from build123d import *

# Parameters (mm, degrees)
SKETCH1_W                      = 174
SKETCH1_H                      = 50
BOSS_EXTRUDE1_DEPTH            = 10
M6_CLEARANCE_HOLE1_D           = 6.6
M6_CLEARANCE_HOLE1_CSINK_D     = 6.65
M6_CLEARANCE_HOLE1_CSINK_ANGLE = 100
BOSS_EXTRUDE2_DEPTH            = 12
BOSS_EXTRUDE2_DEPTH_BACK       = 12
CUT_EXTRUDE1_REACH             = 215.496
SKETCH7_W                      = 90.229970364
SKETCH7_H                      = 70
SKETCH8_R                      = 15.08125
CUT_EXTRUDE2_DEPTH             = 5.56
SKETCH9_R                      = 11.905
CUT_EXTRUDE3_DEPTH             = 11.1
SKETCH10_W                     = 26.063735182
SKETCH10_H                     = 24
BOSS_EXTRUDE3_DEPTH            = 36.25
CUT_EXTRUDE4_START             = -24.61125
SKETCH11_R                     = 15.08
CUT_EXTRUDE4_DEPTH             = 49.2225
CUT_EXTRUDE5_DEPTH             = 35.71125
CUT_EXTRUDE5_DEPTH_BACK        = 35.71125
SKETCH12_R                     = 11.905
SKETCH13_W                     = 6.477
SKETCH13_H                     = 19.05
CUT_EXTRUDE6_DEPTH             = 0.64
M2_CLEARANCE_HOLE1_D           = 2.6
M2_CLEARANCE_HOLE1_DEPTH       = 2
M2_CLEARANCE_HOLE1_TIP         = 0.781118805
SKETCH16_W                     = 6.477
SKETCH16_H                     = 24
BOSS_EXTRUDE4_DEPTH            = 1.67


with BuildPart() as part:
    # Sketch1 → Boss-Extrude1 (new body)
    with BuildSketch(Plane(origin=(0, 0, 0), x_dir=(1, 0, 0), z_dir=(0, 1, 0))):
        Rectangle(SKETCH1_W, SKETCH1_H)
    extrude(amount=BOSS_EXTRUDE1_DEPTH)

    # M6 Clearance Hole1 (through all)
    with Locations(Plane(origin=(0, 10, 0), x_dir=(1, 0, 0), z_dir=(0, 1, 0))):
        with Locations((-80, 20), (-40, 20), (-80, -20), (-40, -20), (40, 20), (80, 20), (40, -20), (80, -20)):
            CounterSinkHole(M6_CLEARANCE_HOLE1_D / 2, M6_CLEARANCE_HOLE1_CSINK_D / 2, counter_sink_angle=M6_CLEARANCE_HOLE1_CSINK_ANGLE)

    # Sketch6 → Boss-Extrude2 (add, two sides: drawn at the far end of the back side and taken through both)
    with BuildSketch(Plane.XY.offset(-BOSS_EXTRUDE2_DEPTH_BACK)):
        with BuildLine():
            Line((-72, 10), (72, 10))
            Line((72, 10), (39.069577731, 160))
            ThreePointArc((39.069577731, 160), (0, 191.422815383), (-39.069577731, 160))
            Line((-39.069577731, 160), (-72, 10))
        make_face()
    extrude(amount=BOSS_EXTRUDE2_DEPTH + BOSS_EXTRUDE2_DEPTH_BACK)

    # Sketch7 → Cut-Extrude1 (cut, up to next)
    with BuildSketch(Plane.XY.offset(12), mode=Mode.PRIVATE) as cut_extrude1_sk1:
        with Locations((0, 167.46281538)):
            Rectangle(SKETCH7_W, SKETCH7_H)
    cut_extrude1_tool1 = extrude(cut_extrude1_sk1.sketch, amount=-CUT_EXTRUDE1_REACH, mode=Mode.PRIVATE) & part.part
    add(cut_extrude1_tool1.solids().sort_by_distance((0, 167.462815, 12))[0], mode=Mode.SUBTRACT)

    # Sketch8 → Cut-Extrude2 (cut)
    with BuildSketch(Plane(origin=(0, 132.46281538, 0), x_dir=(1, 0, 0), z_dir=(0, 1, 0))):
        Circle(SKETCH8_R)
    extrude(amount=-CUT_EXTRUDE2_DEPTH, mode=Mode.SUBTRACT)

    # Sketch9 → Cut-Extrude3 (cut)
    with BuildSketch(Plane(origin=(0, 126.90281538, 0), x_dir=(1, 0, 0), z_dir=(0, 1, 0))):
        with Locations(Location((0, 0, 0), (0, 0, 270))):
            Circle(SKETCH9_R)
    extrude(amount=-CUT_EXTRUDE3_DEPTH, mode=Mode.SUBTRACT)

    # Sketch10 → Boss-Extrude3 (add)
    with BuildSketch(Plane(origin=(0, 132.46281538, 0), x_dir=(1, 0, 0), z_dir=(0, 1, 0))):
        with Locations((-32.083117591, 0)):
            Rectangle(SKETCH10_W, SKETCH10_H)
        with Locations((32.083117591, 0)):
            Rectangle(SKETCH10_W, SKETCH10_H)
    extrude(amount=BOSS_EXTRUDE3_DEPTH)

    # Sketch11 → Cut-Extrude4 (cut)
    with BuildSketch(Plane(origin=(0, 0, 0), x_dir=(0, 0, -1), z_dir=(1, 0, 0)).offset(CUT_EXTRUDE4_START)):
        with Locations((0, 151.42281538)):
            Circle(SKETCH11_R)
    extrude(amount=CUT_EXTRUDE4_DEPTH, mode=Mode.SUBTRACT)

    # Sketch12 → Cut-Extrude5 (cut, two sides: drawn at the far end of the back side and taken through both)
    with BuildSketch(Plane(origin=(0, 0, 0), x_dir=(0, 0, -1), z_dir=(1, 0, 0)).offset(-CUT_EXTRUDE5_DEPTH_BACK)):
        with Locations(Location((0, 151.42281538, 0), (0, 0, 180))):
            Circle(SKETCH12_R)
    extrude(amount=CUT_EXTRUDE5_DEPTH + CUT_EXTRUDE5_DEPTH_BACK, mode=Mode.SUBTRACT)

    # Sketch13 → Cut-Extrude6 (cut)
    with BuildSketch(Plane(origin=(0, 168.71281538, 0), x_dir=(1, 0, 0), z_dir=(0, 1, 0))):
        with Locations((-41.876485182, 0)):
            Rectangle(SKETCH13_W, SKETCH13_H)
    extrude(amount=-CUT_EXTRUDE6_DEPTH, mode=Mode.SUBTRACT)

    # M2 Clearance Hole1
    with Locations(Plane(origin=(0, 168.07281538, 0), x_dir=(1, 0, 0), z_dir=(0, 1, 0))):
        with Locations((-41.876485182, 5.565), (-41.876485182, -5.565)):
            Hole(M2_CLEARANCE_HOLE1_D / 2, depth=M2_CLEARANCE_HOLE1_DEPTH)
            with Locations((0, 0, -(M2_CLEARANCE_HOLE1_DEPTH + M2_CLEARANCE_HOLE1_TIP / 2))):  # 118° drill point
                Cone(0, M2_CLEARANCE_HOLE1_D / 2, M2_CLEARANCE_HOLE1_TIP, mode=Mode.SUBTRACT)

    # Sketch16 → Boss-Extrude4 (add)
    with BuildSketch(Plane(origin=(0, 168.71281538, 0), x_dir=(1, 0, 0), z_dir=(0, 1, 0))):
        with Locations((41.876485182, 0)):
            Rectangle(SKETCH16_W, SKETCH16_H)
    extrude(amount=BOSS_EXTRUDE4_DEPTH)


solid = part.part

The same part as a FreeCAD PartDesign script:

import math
import FreeCAD as App
import Part
import Sketcher
Q = App.Units.Quantity

doc = App.newDocument("Part")
body = doc.addObject("PartDesign::Body", "Body")

sketch1 = body.newObject("Sketcher::SketchObject", "Sketch")
sketch1.AttachmentSupport = (doc.getObject("XZ_Plane"), [""])
sketch1.MapMode = "FlatFace"
sketch1.addGeometry([
    Part.LineSegment(App.Vector(-87, -25, 0), App.Vector(-87, 25, 0)),
    Part.LineSegment(App.Vector(-87, 25, 0), App.Vector(87, 25, 0)),
    Part.LineSegment(App.Vector(87, 25, 0), App.Vector(87, -25, 0)),
    Part.LineSegment(App.Vector(87, -25, 0), App.Vector(-87, -25, 0)),
], False)
sketch1.addConstraint([
    Sketcher.Constraint("Coincident", 0, 2, 1, 1),
    Sketcher.Constraint("Coincident", 1, 2, 2, 1),
    Sketcher.Constraint("Coincident", 2, 2, 3, 1),
    Sketcher.Constraint("Coincident", 3, 2, 0, 1),
    Sketcher.Constraint("Vertical", 0),
    Sketcher.Constraint("Horizontal", 1),
    Sketcher.Constraint("Vertical", 2),
    Sketcher.Constraint("Horizontal", 3),
    Sketcher.Constraint("Symmetric", 0, 2, 2, 2, -1, 1),
    Sketcher.Constraint("DistanceX", 1, 1, 1, 2, Q("174 mm")),
    Sketcher.Constraint("DistanceY", 0, 1, 0, 2, Q("50 mm")),
])
pad1 = body.newObject("PartDesign::Pad", "Pad")
pad1.Profile = sketch1
pad1.Length = 10
pad1.Reversed = True

sketch2 = body.newObject("Sketcher::SketchObject", "Sketch001")
sketch2.AttachmentSupport = (doc.getObject("XZ_Plane"), [""])
sketch2.MapMode = "FlatFace"
sketch2.AttachmentOffset = App.Placement(App.Vector(0, 0, -10), App.Rotation())
sketch2.addGeometry([
    Part.Circle(App.Vector(-80, -20, 0), App.Vector(0, 0, 1), 3.3),
    Part.Circle(App.Vector(-40, -20, 0), App.Vector(0, 0, 1), 3.3),
    Part.Circle(App.Vector(-80, 20, 0), App.Vector(0, 0, 1), 3.3),
    Part.Circle(App.Vector(-40, 20, 0), App.Vector(0, 0, 1), 3.3),
    Part.Circle(App.Vector(40, -20, 0), App.Vector(0, 0, 1), 3.3),
    Part.Circle(App.Vector(80, -20, 0), App.Vector(0, 0, 1), 3.3),
    Part.Circle(App.Vector(40, 20, 0), App.Vector(0, 0, 1), 3.3),
    Part.Circle(App.Vector(80, 20, 0), App.Vector(0, 0, 1), 3.3),
], False)
sketch2.addConstraint([
    Sketcher.Constraint("Equal", 0, 1),
    Sketcher.Constraint("Equal", 1, 2),
    Sketcher.Constraint("Equal", 2, 3),
    Sketcher.Constraint("Equal", 3, 4),
    Sketcher.Constraint("Equal", 4, 5),
    Sketcher.Constraint("Equal", 5, 6),
    Sketcher.Constraint("Equal", 6, 7),
    Sketcher.Constraint("Symmetric", 3, 3, 4, 3, -1, 1),
    Sketcher.Constraint("Symmetric", 2, 3, 5, 3, -1, 1),
    Sketcher.Constraint("Symmetric", 1, 3, 6, 3, -1, 1),
    Sketcher.Constraint("Symmetric", 0, 3, 7, 3, -1, 1),
    Sketcher.Constraint("Symmetric", 1, 3, 4, 3, -2),
    Sketcher.Constraint("Symmetric", 0, 3, 5, 3, -2),
    Sketcher.Constraint("Horizontal", 0, 3, 1, 3),
    Sketcher.Constraint("Diameter", 0, Q("6.6 mm")),
    Sketcher.Constraint("DistanceX", 0, 3, -1, 1, Q("80 mm")),
    Sketcher.Constraint("DistanceY", 0, 3, -1, 1, Q("20 mm")),
    Sketcher.Constraint("DistanceX", 1, 3, -1, 1, Q("40 mm")),
])
doc.recompute()
hole = body.newObject("PartDesign::Hole", "Hole")
hole.Profile = sketch2
hole.ThreadType = "None"
hole.Diameter = 6.6
hole.DepthType = "ThroughAll"
hole.HoleCutType = "Countersink"
hole.HoleCutDiameter = 6.65
hole.HoleCutCountersinkAngle = 100
hole.Reversed = True

sketch3 = body.newObject("Sketcher::SketchObject", "Sketch002")
sketch3.AttachmentSupport = (doc.getObject("XY_Plane"), [""])
sketch3.MapMode = "FlatFace"
sketch3.addGeometry([
    Part.LineSegment(App.Vector(-72, 10, 0), App.Vector(72, 10, 0)),
    Part.LineSegment(App.Vector(72, 10, 0), App.Vector(39, 160, 0)),
    Part.ArcOfCircle(Part.Circle(App.Vector(0, 151, 0), App.Vector(0, 0, 1), 40), math.radians(12), math.radians(168)),
    Part.LineSegment(App.Vector(-39, 160, 0), App.Vector(-72, 10, 0)),
], False)
sketch3.addConstraint([
    Sketcher.Constraint("Coincident", 0, 2, 1, 1),
    Sketcher.Constraint("Tangent", 1, 2, 2, 1),
    Sketcher.Constraint("Tangent", 2, 2, 3, 1),
    Sketcher.Constraint("Coincident", 3, 2, 0, 1),
    Sketcher.Constraint("Horizontal", 0),
    Sketcher.Constraint("Symmetric", 1, 2, 2, 2, -2),
    Sketcher.Constraint("Radius", 2, Q("40 mm")),
    Sketcher.Constraint("DistanceX", 0, 1, 0, 2, Q("144 mm")),
    Sketcher.Constraint("DistanceY", -1, 1, 0, 2, Q("10 mm")),
    Sketcher.Constraint("DistanceY", -1, 1, 1, 2, Q("160 mm")),
])
pad2 = body.newObject("PartDesign::Pad", "Pad001")
pad2.Profile = sketch3
pad2.Type = "TwoLengths"
pad2.Length = 12
pad2.Length2 = 12

sketch4 = body.newObject("Sketcher::SketchObject", "Sketch003")
sketch4.AttachmentSupport = (doc.getObject("XY_Plane"), [""])
sketch4.MapMode = "FlatFace"
sketch4.AttachmentOffset = App.Placement(App.Vector(0, 0, 12), App.Rotation())
sketch4.addGeometry([
    Part.LineSegment(App.Vector(-45, 202, 0), App.Vector(-45, 132, 0)),
    Part.LineSegment(App.Vector(-45, 132, 0), App.Vector(45, 132, 0)),
    Part.LineSegment(App.Vector(45, 132, 0), App.Vector(45, 202, 0)),
    Part.LineSegment(App.Vector(45, 202, 0), App.Vector(-45, 202, 0)),
], False)
sketch4.addConstraint([
    Sketcher.Constraint("Coincident", 0, 2, 1, 1),
    Sketcher.Constraint("Coincident", 1, 2, 2, 1),
    Sketcher.Constraint("Coincident", 2, 2, 3, 1),
    Sketcher.Constraint("Coincident", 3, 2, 0, 1),
    Sketcher.Constraint("Vertical", 0),
    Sketcher.Constraint("Horizontal", 1),
    Sketcher.Constraint("Vertical", 2),
    Sketcher.Constraint("Horizontal", 3),
    Sketcher.Constraint("DistanceY", 0, 2, 0, 1, Q("70 mm")),
    Sketcher.Constraint("DistanceX", 1, 1, 1, 2, Q("90.22997 mm")),
    Sketcher.Constraint("DistanceX", 0, 2, -1, 1, Q("45.114985 mm")),
    Sketcher.Constraint("DistanceY", -1, 1, 0, 2, Q("132.462815 mm")),
])
pocket1 = body.newObject("PartDesign::Pocket", "Pocket")
pocket1.Profile = sketch4
pocket1.Type = "UpToFirst"

sketch5 = body.newObject("Sketcher::SketchObject", "Sketch004")
sketch5.AttachmentSupport = (doc.getObject("XZ_Plane"), [""])
sketch5.MapMode = "FlatFace"
sketch5.AttachmentOffset = App.Placement(App.Vector(0, 0, -132.462815), App.Rotation())
sketch5.addGeometry(Part.Circle(App.Vector(0, 0, 0), App.Vector(0, 0, 1), 15), False)
sketch5.addConstraint([
    Sketcher.Constraint("Coincident", 0, 3, -1, 1),
    Sketcher.Constraint("Diameter", 0, Q("30.1625 mm")),
])
pocket2 = body.newObject("PartDesign::Pocket", "Pocket001")
pocket2.Profile = sketch5
pocket2.Length = 5.56
pocket2.Reversed = True

sketch6 = body.newObject("Sketcher::SketchObject", "Sketch005")
sketch6.AttachmentSupport = (doc.getObject("XZ_Plane"), [""])
sketch6.MapMode = "FlatFace"
sketch6.AttachmentOffset = App.Placement(App.Vector(0, 0, -126.902815), App.Rotation())
sketch6.addGeometry(Part.Circle(App.Vector(0, 0, 0), App.Vector(0, 0, 1), 12), False)
sketch6.addConstraint([
    Sketcher.Constraint("Coincident", 0, 3, -1, 1),
    Sketcher.Constraint("Diameter", 0, Q("23.81 mm")),
])
pocket3 = body.newObject("PartDesign::Pocket", "Pocket002")
pocket3.Profile = sketch6
pocket3.Length = 11.1
pocket3.Reversed = True

sketch7 = body.newObject("Sketcher::SketchObject", "Sketch006")
sketch7.AttachmentSupport = (doc.getObject("XZ_Plane"), [""])
sketch7.MapMode = "FlatFace"
sketch7.AttachmentOffset = App.Placement(App.Vector(0, 0, -132.462815), App.Rotation())
sketch7.addGeometry([
    Part.LineSegment(App.Vector(-45, -12, 0), App.Vector(-45, 12, 0)),
    Part.LineSegment(App.Vector(-45, 12, 0), App.Vector(-19, 12, 0)),
    Part.LineSegment(App.Vector(-19, 12, 0), App.Vector(-19, -12, 0)),
    Part.LineSegment(App.Vector(-19, -12, 0), App.Vector(-45, -12, 0)),
    Part.LineSegment(App.Vector(19, -12, 0), App.Vector(19, 12, 0)),
    Part.LineSegment(App.Vector(19, 12, 0), App.Vector(45, 12, 0)),
    Part.LineSegment(App.Vector(45, 12, 0), App.Vector(45, -12, 0)),
    Part.LineSegment(App.Vector(45, -12, 0), App.Vector(19, -12, 0)),
], False)
sketch7.addConstraint([
    Sketcher.Constraint("Coincident", 0, 2, 1, 1),
    Sketcher.Constraint("Coincident", 1, 2, 2, 1),
    Sketcher.Constraint("Coincident", 2, 2, 3, 1),
    Sketcher.Constraint("Coincident", 3, 2, 0, 1),
    Sketcher.Constraint("Coincident", 4, 2, 5, 1),
    Sketcher.Constraint("Coincident", 5, 2, 6, 1),
    Sketcher.Constraint("Coincident", 6, 2, 7, 1),
    Sketcher.Constraint("Coincident", 7, 2, 4, 1),
    Sketcher.Constraint("Vertical", 0),
    Sketcher.Constraint("Horizontal", 1),
    Sketcher.Constraint("Vertical", 2),
    Sketcher.Constraint("Horizontal", 3),
    Sketcher.Constraint("Vertical", 4),
    Sketcher.Constraint("Horizontal", 5),
    Sketcher.Constraint("Vertical", 6),
    Sketcher.Constraint("Horizontal", 7),
    Sketcher.Constraint("Symmetric", 2, 2, 4, 2, -1, 1),
    Sketcher.Constraint("Symmetric", 0, 2, 6, 2, -1, 1),
    Sketcher.Constraint("Horizontal", 1, 2, 4, 2),
    Sketcher.Constraint("DistanceY", 0, 1, 0, 2, Q("24 mm")),
    Sketcher.Constraint("DistanceX", 1, 2, 4, 2, Q("38.1025 mm")),
    Sketcher.Constraint("DistanceX", 1, 1, 1, 2, Q("26.063735 mm")),
])
pad3 = body.newObject("PartDesign::Pad", "Pad002")
pad3.Profile = sketch7
pad3.Length = 36.25
pad3.Reversed = True

sketch8 = body.newObject("Sketcher::SketchObject", "Sketch007")
sketch8.AttachmentSupport = (doc.getObject("YZ_Plane"), [""])
sketch8.MapMode = "FlatFace"
sketch8.AttachmentOffset = App.Placement(App.Vector(0, 0, -24.61125), App.Rotation())
sketch8.addGeometry(Part.Circle(App.Vector(151, 0, 0), App.Vector(0, 0, 1), 15), False)
sketch8.addConstraint([
    Sketcher.Constraint("PointOnObject", 0, 3, -1),
    Sketcher.Constraint("Diameter", 0, Q("30.16 mm")),
    Sketcher.Constraint("DistanceX", -1, 1, 0, 3, Q("151.422815 mm")),
])
pocket4 = body.newObject("PartDesign::Pocket", "Pocket003")
pocket4.Profile = sketch8
pocket4.Length = 49.2225
pocket4.Reversed = True

sketch9 = body.newObject("Sketcher::SketchObject", "Sketch008")
sketch9.AttachmentSupport = (doc.getObject("YZ_Plane"), [""])
sketch9.MapMode = "FlatFace"
sketch9.addGeometry(Part.Circle(App.Vector(151, 0, 0), App.Vector(0, 0, 1), 12), False)
sketch9.addConstraint([
    Sketcher.Constraint("PointOnObject", 0, 3, -1),
    Sketcher.Constraint("Diameter", 0, Q("23.81 mm")),
    Sketcher.Constraint("DistanceX", -1, 1, 0, 3, Q("151.422815 mm")),
])
pocket5 = body.newObject("PartDesign::Pocket", "Pocket004")
pocket5.Profile = sketch9
pocket5.Type = "TwoLengths"
pocket5.Length = 35.71125
pocket5.Length2 = 35.71125
pocket5.Reversed = True

sketch10 = body.newObject("Sketcher::SketchObject", "Sketch009")
sketch10.AttachmentSupport = (doc.getObject("XZ_Plane"), [""])
sketch10.MapMode = "FlatFace"
sketch10.AttachmentOffset = App.Placement(App.Vector(0, 0, -168.712815), App.Rotation())
sketch10.addGeometry([
    Part.LineSegment(App.Vector(-45, -10, 0), App.Vector(-45, 10, 0)),
    Part.LineSegment(App.Vector(-45, 10, 0), App.Vector(-39, 10, 0)),
    Part.LineSegment(App.Vector(-39, 10, 0), App.Vector(-39, -10, 0)),
    Part.LineSegment(App.Vector(-39, -10, 0), App.Vector(-45, -10, 0)),
], False)
sketch10.addConstraint([
    Sketcher.Constraint("Coincident", 0, 2, 1, 1),
    Sketcher.Constraint("Coincident", 1, 2, 2, 1),
    Sketcher.Constraint("Coincident", 2, 2, 3, 1),
    Sketcher.Constraint("Coincident", 3, 2, 0, 1),
    Sketcher.Constraint("Vertical", 0),
    Sketcher.Constraint("Horizontal", 1),
    Sketcher.Constraint("Vertical", 2),
    Sketcher.Constraint("Horizontal", 3),
    Sketcher.Constraint("DistanceY", 0, 1, 0, 2, Q("19.05 mm")),
    Sketcher.Constraint("DistanceX", 1, 1, 1, 2, Q("6.477 mm")),
    Sketcher.Constraint("DistanceY", -1, 1, 0, 2, Q("9.525 mm")),
    Sketcher.Constraint("DistanceX", 0, 2, -1, 1, Q("45.114985 mm")),
])
pocket6 = body.newObject("PartDesign::Pocket", "Pocket005")
pocket6.Profile = sketch10
pocket6.Length = 0.64
pocket6.Reversed = True

sketch11 = body.newObject("Sketcher::SketchObject", "Sketch010")
sketch11.AttachmentSupport = (doc.getObject("XZ_Plane"), [""])
sketch11.MapMode = "FlatFace"
sketch11.AttachmentOffset = App.Placement(App.Vector(0, 0, -168.072815), App.Rotation())
sketch11.addGeometry([
    Part.Circle(App.Vector(-41.9, -5.6, 0), App.Vector(0, 0, 1), 1.3),
    Part.Circle(App.Vector(-41.9, 5.6, 0), App.Vector(0, 0, 1), 1.3),
], False)
sketch11.addConstraint([
    Sketcher.Constraint("Equal", 0, 1),
    Sketcher.Constraint("Symmetric", 0, 3, 1, 3, -1),
    Sketcher.Constraint("Diameter", 0, Q("2.6 mm")),
    Sketcher.Constraint("DistanceY", 0, 3, 1, 3, Q("11.13 mm")),
    Sketcher.Constraint("DistanceX", 0, 3, -1, 1, Q("41.876485 mm")),
])
doc.recompute()
hole2 = body.newObject("PartDesign::Hole", "Hole001")
hole2.Profile = sketch11
hole2.ThreadType = "None"
hole2.Diameter = 2.6
hole2.DepthType = "Dimension"
hole2.Depth = 2
hole2.DrillPoint = "Angled"
hole2.DrillPointAngle = 118
hole2.Reversed = True

sketch12 = body.newObject("Sketcher::SketchObject", "Sketch011")
sketch12.AttachmentSupport = (doc.getObject("XZ_Plane"), [""])
sketch12.MapMode = "FlatFace"
sketch12.AttachmentOffset = App.Placement(App.Vector(0, 0, -168.712815), App.Rotation())
sketch12.addGeometry([
    Part.LineSegment(App.Vector(39, -12, 0), App.Vector(39, 12, 0)),
    Part.LineSegment(App.Vector(39, 12, 0), App.Vector(45, 12, 0)),
    Part.LineSegment(App.Vector(45, 12, 0), App.Vector(45, -12, 0)),
    Part.LineSegment(App.Vector(45, -12, 0), App.Vector(39, -12, 0)),
], False)
sketch12.addConstraint([
    Sketcher.Constraint("Coincident", 0, 2, 1, 1),
    Sketcher.Constraint("Coincident", 1, 2, 2, 1),
    Sketcher.Constraint("Coincident", 2, 2, 3, 1),
    Sketcher.Constraint("Coincident", 3, 2, 0, 1),
    Sketcher.Constraint("Vertical", 0),
    Sketcher.Constraint("Horizontal", 1),
    Sketcher.Constraint("Vertical", 2),
    Sketcher.Constraint("Horizontal", 3),
    Sketcher.Constraint("DistanceY", 0, 1, 0, 2, Q("24 mm")),
    Sketcher.Constraint("DistanceY", -1, 1, 0, 2, Q("12 mm")),
    Sketcher.Constraint("DistanceX", 1, 1, 1, 2, Q("6.477 mm")),
    Sketcher.Constraint("DistanceX", -1, 1, 0, 2, Q("38.637985 mm")),
])
pad4 = body.newObject("PartDesign::Pad", "Pad003")
pad4.Profile = sketch12
pad4.Length = 1.67
pad4.Reversed = True

doc.recompute()
